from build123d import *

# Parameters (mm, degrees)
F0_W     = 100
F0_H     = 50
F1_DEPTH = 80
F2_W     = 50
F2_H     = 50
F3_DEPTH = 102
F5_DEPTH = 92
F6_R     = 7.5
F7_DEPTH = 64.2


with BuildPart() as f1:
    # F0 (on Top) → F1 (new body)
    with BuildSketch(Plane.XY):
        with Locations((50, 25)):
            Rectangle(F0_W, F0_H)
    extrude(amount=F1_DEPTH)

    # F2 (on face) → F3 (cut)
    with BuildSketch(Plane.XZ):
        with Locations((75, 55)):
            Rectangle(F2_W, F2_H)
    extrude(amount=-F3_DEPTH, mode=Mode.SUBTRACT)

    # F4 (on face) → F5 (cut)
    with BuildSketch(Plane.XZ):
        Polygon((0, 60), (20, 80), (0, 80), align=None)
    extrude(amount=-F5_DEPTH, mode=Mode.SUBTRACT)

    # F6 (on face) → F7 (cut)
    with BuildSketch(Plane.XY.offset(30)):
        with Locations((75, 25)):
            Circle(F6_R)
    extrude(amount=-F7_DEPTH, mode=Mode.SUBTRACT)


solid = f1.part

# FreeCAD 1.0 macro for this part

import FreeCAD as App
import Part
import Sketcher
Q = App.Units.Quantity

doc = App.newDocument("Part")
body = doc.addObject("PartDesign::Body", "Body")

sketch1 = doc.addObject("Sketcher::SketchObject", "Sketch")
body.addObject(sketch1)
sketch1.AttachmentSupport = (doc.XY_Plane, [""])
sketch1.MapMode = "FlatFace"
sketch1.addGeometry(Part.LineSegment(App.Vector(0, 50, 0), App.Vector(0, 0, 0)), False)
sketch1.addGeometry(Part.LineSegment(App.Vector(0, 0, 0), App.Vector(100, 0, 0)), False)
sketch1.addGeometry(Part.LineSegment(App.Vector(100, 0, 0), App.Vector(100, 50, 0)), False)
sketch1.addGeometry(Part.LineSegment(App.Vector(100, 50, 0), App.Vector(0, 50, 0)), False)
sketch1.addConstraint(Sketcher.Constraint("Coincident", 0, 2, 1, 1))
sketch1.addConstraint(Sketcher.Constraint("Coincident", 1, 2, 2, 1))
sketch1.addConstraint(Sketcher.Constraint("Coincident", 2, 2, 3, 1))
sketch1.addConstraint(Sketcher.Constraint("Coincident", 3, 2, 0, 1))
sketch1.addConstraint(Sketcher.Constraint("Vertical", 0))
sketch1.addConstraint(Sketcher.Constraint("Horizontal", 1))
sketch1.addConstraint(Sketcher.Constraint("Vertical", 2))
sketch1.addConstraint(Sketcher.Constraint("Horizontal", 3))
sketch1.addConstraint(Sketcher.Constraint("Coincident", 0, 2, -1, 1))
sketch1.addConstraint(Sketcher.Constraint("DistanceX", 1, 1, 1, 2, Q("100 mm")))
sketch1.addConstraint(Sketcher.Constraint("DistanceY", 0, 2, 0, 1, Q("50 mm")))
pad1 = doc.addObject("PartDesign::Pad", "Pad")
body.addObject(pad1)
pad1.Profile = sketch1
pad1.Length = 80

sketch2 = doc.addObject("Sketcher::SketchObject", "Sketch001")
body.addObject(sketch2)
sketch2.AttachmentSupport = (doc.XZ_Plane, [""])
sketch2.MapMode = "FlatFace"
sketch2.addGeometry(Part.LineSegment(App.Vector(50, 80, 0), App.Vector(50, 30, 0)), False)
sketch2.addGeometry(Part.LineSegment(App.Vector(50, 30, 0), App.Vector(100, 30, 0)), False)
sketch2.addGeometry(Part.LineSegment(App.Vector(100, 30, 0), App.Vector(100, 80, 0)), False)
sketch2.addGeometry(Part.LineSegment(App.Vector(100, 80, 0), App.Vector(50, 80, 0)), False)
sketch2.addConstraint(Sketcher.Constraint("Coincident", 0, 2, 1, 1))
sketch2.addConstraint(Sketcher.Constraint("Coincident", 1, 2, 2, 1))
sketch2.addConstraint(Sketcher.Constraint("Coincident", 2, 2, 3, 1))
sketch2.addConstraint(Sketcher.Constraint("Coincident", 3, 2, 0, 1))
sketch2.addConstraint(Sketcher.Constraint("Vertical", 0))
sketch2.addConstraint(Sketcher.Constraint("Horizontal", 1))
sketch2.addConstraint(Sketcher.Constraint("Vertical", 2))
sketch2.addConstraint(Sketcher.Constraint("Horizontal", 3))
sketch2.addConstraint(Sketcher.Constraint("Equal", 3, 0))
sketch2.addConstraint(Sketcher.Constraint("DistanceX", 1, 1, 1, 2, Q("50 mm")))
sketch2.addConstraint(Sketcher.Constraint("DistanceX", -1, 1, 0, 2, Q("50 mm")))
sketch2.addConstraint(Sketcher.Constraint("DistanceY", -1, 1, 0, 2, Q("30 mm")))
pocket1 = doc.addObject("PartDesign::Pocket", "Pocket")
body.addObject(pocket1)
pocket1.Profile = sketch2
pocket1.Length = 102

sketch3 = doc.addObject("Sketcher::SketchObject", "Sketch002")
body.addObject(sketch3)
sketch3.AttachmentSupport = (doc.XZ_Plane, [""])
sketch3.MapMode = "FlatFace"
sketch3.addGeometry(Part.LineSegment(App.Vector(0, 60, 0), App.Vector(20, 80, 0)), False)
sketch3.addGeometry(Part.LineSegment(App.Vector(20, 80, 0), App.Vector(0, 80, 0)), False)
sketch3.addGeometry(Part.LineSegment(App.Vector(0, 80, 0), App.Vector(0, 60, 0)), False)
sketch3.addConstraint(Sketcher.Constraint("Coincident", 0, 2, 1, 1))
sketch3.addConstraint(Sketcher.Constraint("Coincident", 1, 2, 2, 1))
sketch3.addConstraint(Sketcher.Constraint("Coincident", 2, 2, 0, 1))
sketch3.addConstraint(Sketcher.Constraint("Horizontal", 1))
sketch3.addConstraint(Sketcher.Constraint("Vertical", 2))
sketch3.addConstraint(Sketcher.Constraint("PointOnObject", 1, 2, -2))
sketch3.addConstraint(Sketcher.Constraint("Equal", 1, 2))
sketch3.addConstraint(Sketcher.Constraint("DistanceX", 1, 2, 1, 1, Q("20 mm")))
sketch3.addConstraint(Sketcher.Constraint("DistanceY", -1, 1, 0, 2, Q("80 mm")))
pocket2 = doc.addObject("PartDesign::Pocket", "Pocket001")
body.addObject(pocket2)
pocket2.Profile = sketch3
pocket2.Length = 92

sketch4 = doc.addObject("Sketcher::SketchObject", "Sketch003")
body.addObject(sketch4)
sketch4.AttachmentSupport = (doc.XY_Plane, [""])
sketch4.MapMode = "FlatFace"
sketch4.AttachmentOffset = App.Placement(App.Vector(0, 0, 30), App.Rotation())
sketch4.addGeometry(Part.Circle(App.Vector(75, 25, 0), App.Vector(0, 0, 1), 7.5), False)
sketch4.addConstraint(Sketcher.Constraint("Diameter", 0, Q("15 mm")))
sketch4.addConstraint(Sketcher.Constraint("DistanceX", -1, 1, 0, 3, Q("75 mm")))
sketch4.addConstraint(Sketcher.Constraint("DistanceY", -1, 1, 0, 3, Q("25 mm")))
pocket3 = doc.addObject("PartDesign::Pocket", "Pocket002")
body.addObject(pocket3)
pocket3.Profile = sketch4
pocket3.Length = 64.2

doc.recompute()
